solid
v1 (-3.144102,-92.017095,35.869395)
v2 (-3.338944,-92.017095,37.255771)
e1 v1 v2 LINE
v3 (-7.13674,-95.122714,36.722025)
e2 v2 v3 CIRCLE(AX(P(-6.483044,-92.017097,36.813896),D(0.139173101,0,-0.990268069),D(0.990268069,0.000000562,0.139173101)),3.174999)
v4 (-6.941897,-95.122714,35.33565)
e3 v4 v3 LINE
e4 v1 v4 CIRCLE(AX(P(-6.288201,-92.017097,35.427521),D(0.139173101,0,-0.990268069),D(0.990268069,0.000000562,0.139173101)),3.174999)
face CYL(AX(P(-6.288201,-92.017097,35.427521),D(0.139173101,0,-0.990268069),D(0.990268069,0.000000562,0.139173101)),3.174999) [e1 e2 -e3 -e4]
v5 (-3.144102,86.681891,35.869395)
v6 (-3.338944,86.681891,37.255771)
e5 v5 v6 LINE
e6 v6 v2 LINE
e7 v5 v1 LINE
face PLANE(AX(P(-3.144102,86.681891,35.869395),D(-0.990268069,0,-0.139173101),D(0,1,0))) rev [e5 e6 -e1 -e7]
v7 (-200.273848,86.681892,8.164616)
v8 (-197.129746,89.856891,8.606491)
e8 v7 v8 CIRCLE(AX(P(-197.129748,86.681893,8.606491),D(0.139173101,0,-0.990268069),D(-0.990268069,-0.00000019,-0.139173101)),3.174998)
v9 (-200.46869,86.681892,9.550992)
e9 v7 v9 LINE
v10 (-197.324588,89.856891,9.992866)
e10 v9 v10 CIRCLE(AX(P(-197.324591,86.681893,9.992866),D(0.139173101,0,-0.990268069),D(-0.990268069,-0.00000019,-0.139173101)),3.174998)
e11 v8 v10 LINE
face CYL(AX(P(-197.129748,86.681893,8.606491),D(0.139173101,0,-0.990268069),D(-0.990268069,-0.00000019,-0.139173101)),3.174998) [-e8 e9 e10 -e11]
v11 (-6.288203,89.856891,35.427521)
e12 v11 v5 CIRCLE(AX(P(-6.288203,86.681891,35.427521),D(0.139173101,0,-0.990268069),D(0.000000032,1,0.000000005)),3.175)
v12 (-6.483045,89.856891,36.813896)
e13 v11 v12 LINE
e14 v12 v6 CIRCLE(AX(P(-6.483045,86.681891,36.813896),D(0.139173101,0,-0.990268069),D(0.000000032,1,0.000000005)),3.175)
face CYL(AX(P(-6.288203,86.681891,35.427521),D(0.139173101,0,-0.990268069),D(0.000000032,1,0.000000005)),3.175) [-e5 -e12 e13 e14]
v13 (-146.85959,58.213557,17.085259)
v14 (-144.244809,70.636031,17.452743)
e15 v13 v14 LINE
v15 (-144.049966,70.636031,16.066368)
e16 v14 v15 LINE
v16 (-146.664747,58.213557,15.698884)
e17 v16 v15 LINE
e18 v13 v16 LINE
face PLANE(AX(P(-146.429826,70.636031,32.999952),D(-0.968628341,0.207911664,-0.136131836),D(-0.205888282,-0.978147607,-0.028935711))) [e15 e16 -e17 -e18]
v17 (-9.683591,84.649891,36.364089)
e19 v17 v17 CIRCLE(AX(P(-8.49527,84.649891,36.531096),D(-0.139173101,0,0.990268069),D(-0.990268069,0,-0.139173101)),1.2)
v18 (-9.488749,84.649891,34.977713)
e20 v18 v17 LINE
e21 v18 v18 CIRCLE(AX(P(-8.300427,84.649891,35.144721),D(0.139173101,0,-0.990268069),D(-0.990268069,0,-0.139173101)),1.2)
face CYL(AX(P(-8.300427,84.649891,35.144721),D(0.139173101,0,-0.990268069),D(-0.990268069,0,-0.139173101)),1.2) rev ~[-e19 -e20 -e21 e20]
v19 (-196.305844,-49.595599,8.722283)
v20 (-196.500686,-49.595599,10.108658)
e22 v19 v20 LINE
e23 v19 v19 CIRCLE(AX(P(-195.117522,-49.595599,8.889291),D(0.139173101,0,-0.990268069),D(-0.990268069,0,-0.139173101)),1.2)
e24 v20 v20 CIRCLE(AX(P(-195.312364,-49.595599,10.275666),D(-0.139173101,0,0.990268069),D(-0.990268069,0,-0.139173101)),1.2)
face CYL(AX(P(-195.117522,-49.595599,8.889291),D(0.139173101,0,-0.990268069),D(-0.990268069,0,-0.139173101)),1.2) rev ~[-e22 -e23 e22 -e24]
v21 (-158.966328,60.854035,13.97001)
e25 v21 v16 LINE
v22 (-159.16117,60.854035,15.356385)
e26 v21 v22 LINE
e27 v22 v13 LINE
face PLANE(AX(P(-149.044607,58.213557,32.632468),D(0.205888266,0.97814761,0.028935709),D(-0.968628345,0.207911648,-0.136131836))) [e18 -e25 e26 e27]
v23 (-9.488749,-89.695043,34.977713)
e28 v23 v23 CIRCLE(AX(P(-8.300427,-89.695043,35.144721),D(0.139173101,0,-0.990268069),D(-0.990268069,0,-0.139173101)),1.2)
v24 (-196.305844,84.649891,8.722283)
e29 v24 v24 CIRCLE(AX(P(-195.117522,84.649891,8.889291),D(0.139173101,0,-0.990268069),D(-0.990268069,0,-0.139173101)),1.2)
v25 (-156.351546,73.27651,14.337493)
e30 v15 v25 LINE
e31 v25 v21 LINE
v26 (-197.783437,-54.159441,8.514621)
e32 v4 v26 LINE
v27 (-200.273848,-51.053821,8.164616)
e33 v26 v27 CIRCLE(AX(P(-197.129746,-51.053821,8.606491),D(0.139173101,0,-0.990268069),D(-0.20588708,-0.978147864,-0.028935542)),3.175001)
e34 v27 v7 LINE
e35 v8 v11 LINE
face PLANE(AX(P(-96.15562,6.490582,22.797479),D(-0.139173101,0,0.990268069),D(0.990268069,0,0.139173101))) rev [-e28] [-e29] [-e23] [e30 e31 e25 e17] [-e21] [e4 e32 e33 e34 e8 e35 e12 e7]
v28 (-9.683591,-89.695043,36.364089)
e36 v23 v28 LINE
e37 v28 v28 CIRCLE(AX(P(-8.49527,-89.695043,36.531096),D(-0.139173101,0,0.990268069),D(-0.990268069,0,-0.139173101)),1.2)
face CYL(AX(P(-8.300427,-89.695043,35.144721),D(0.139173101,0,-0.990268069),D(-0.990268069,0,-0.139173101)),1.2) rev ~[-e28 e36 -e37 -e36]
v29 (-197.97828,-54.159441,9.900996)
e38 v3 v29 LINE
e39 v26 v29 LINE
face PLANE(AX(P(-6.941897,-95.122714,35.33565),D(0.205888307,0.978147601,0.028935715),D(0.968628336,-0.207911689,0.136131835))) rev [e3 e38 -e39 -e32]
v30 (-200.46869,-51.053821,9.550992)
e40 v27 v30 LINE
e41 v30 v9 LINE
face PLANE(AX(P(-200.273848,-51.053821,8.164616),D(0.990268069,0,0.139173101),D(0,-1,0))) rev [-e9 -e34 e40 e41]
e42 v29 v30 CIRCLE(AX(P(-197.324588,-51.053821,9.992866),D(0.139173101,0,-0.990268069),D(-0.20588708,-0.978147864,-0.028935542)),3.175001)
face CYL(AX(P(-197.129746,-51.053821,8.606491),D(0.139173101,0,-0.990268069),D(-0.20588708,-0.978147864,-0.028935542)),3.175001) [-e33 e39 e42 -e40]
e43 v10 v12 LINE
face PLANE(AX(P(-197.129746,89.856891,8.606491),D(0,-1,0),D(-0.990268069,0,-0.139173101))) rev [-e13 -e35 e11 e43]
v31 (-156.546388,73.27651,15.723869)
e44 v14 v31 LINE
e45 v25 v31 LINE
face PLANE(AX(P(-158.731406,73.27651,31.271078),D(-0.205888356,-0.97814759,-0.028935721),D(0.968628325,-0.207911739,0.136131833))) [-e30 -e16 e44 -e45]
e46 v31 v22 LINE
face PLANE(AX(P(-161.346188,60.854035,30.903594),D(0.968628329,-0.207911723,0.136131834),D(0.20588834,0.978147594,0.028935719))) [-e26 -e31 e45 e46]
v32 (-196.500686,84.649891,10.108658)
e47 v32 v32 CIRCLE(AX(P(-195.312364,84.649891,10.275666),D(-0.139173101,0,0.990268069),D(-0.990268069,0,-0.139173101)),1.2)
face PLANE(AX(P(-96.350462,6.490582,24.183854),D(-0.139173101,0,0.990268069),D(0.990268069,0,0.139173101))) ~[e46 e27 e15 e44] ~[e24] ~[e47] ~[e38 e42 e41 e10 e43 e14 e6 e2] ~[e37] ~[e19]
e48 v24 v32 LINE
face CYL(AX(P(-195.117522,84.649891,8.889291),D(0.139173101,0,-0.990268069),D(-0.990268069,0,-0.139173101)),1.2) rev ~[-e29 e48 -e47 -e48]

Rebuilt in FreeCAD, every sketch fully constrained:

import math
import FreeCAD as App
import Part
import Sketcher
Q = App.Units.Quantity

doc = App.newDocument("Part")
body = doc.addObject("PartDesign::Body", "Body")

# Sketch on XY plane
sketch1 = doc.addObject("Sketcher::SketchObject", "Sketch")
body.addObject(sketch1)
sketch1.AttachmentSupport = (doc.XY_Plane, [""])
sketch1.MapMode = "FlatFace"
sketch1.addGeometry([
    Part.LineSegment(App.Vector(-140, 71, 0), App.Vector(-153, 73, 0)),
    Part.LineSegment(App.Vector(-153, 73, 0), App.Vector(-155, 61, 0)),
    Part.LineSegment(App.Vector(-155, 61, 0), App.Vector(-143, 58, 0)),
    Part.LineSegment(App.Vector(-143, 58, 0), App.Vector(-140, 71, 0)),
], False)
sketch1.addConstraint([
    Sketcher.Constraint("Coincident", 0, 2, 1, 1),
    Sketcher.Constraint("Coincident", 1, 2, 2, 1),
    Sketcher.Constraint("Coincident", 2, 2, 3, 1),
    Sketcher.Constraint("Coincident", 3, 2, 0, 1),
    Sketcher.Constraint("Perpendicular", 0, 1),
    Sketcher.Constraint("Perpendicular", 1, 2),
    Sketcher.Constraint("Perpendicular", 2, 3),
    Sketcher.Constraint("Equal", 0, 1),
    Sketcher.Constraint("Angle", 0, Q("167.999997 deg")),
    Sketcher.Constraint("Distance", 0, Q("0.5 in")),
    Sketcher.Constraint("DistanceX", 0, 2, -1, 1, Q("152.83455 mm")),
    Sketcher.Constraint("DistanceY", -1, 1, 0, 2, Q("73.27651 mm")),
])
pad1 = doc.addObject("PartDesign::Pad", "Pad")
body.addObject(pad1)
pad1.Profile = sketch1
pad1.Length = Q("2 in")
pad1.Midplane = True
body2 = doc.addObject("PartDesign::Body", "Body001")
doc.recompute()

body.Placement = App.Placement(App.Vector(-7.384231, 0, 52.541536), App.Rotation(App.Vector(0, -1, 0), 8))
boolean = doc.addObject("PartDesign::Boolean", "Boolean")
body2.addObject(boolean)
boolean.Type = "Fuse"
boolean.addObjects([body])
body3 = doc.addObject("PartDesign::Body", "Body002")
body3.AllowCompound = True

# Sketch on XY plane
sketch2 = doc.addObject("Sketcher::SketchObject", "Sketch001")
body3.addObject(sketch2)
sketch2.AttachmentSupport = (doc.getObject("XY_Plane002"), [""])
sketch2.MapMode = "FlatFace"
sketch2.addGeometry([
    Part.Circle(App.Vector(-32, 84.6, 0), App.Vector(0, 0, 1), 1.2),
    Part.Circle(App.Vector(-32, -89.7, 0), App.Vector(0, 0, 1), 1.2),
    Part.Circle(App.Vector(156.7, -49.6, 0), App.Vector(0, 0, 1), 1.2),
    Part.Circle(App.Vector(156.7, 84.6, 0), App.Vector(0, 0, 1), 1.2),
], False)
sketch2.addConstraint([
    Sketcher.Constraint("Equal", 0, 1),
    Sketcher.Constraint("Equal", 1, 2),
    Sketcher.Constraint("Equal", 2, 3),
    Sketcher.Constraint("Horizontal", 0, 3, 3, 3),
    Sketcher.Constraint("Vertical", 0, 3, 1, 3),
    Sketcher.Constraint("Vertical", 2, 3, 3, 3),
    Sketcher.Constraint("Diameter", 0, Q("2.4 mm")),
    Sketcher.Constraint("DistanceY", 2, 3, -1, 1, Q("49.595599 mm")),
    Sketcher.Constraint("DistanceX", 0, 3, -1, 1, Q("31.998318 mm")),
    Sketcher.Constraint("DistanceY", -1, 1, 0, 3, Q("84.649891 mm")),
    Sketcher.Constraint("DistanceY", 1, 3, -1, 1, Q("89.695043 mm")),
    Sketcher.Constraint("DistanceX", -1, 1, 2, 3, Q("156.654735 mm")),
])
pad2 = doc.addObject("PartDesign::Pad", "Pad001")
body3.addObject(pad2)
pad2.Profile = sketch2
pad2.Length = 7.8
body4 = doc.addObject("PartDesign::Body", "Body003")
body4.AllowCompound = True
doc.recompute()

body3.Placement = App.Placement(App.Vector(39.98734, 0, 30.691416), App.Rotation(App.Vector(0, 1, 0), 8))
boolean2 = doc.addObject("PartDesign::Boolean", "Boolean001")
body4.addObject(boolean2)
boolean2.Type = "Fuse"
boolean2.addObjects([body3])
body5 = doc.addObject("PartDesign::Body", "Body004")

# Sketch on XY plane
sketch3 = doc.addObject("Sketcher::SketchObject", "Sketch002")
body5.addObject(sketch3)
sketch3.AttachmentSupport = (doc.getObject("XY_Plane004"), [""])
sketch3.MapMode = "FlatFace"
sketch3.addGeometry([
    Part.LineSegment(App.Vector(-37.2, 86.7, 0), App.Vector(-37.2, -92, 0)),  # 0
    Part.ArcOfCircle(Part.Circle(App.Vector(-34, -92, 0), App.Vector(0, 0, 1), 3.2), math.radians(180), math.radians(282)),  # 1
    Part.LineSegment(App.Vector(-33.4, -95.1, 0), App.Vector(159.3, -54.2, 0)),  # 2
    Part.ArcOfCircle(Part.Circle(App.Vector(158.7, -51.1, 0), App.Vector(0, 0, 1), 3.2), math.radians(-78), math.radians(0)),  # 3
    Part.LineSegment(App.Vector(161.9, -51.1, 0), App.Vector(161.9, 86.7, 0)),  # 4
    Part.ArcOfCircle(Part.Circle(App.Vector(158.7, 86.7, 0), App.Vector(0, 0, 1), 3.2), math.radians(0), math.radians(90)),  # 5
    Part.LineSegment(App.Vector(158.7, 89.9, 0), App.Vector(-34, 89.9, 0)),  # 6
    Part.ArcOfCircle(Part.Circle(App.Vector(-34, 86.7, 0), App.Vector(0, 0, 1), 3.2), math.radians(90), math.radians(180)),  # 7
], False)
sketch3.addConstraint([
    Sketcher.Constraint("Tangent", 0, 2, 1, 1),
    Sketcher.Constraint("Tangent", 1, 2, 2, 1),
    Sketcher.Constraint("Tangent", 2, 2, 3, 1),
    Sketcher.Constraint("Tangent", 3, 2, 4, 1),
    Sketcher.Constraint("Tangent", 4, 2, 5, 1),
    Sketcher.Constraint("Tangent", 5, 2, 6, 1),
    Sketcher.Constraint("Tangent", 6, 2, 7, 1),
    Sketcher.Constraint("Tangent", 7, 2, 0, 1),
    Sketcher.Constraint("Vertical", 0),
    Sketcher.Constraint("Vertical", 4),
    Sketcher.Constraint("Horizontal", 6),
    Sketcher.Constraint("Equal", 1, 5),
    Sketcher.Constraint("Equal", 5, 7),
    Sketcher.Constraint("Vertical", 3, 3, 5, 2),
    Sketcher.Constraint("Angle", 2, Q("12 deg")),
    Sketcher.Constraint("Radius", 1, Q("0.125 in")),
    Sketcher.Constraint("DistanceX", 6, 2, 6, 1, Q("192.717052 mm")),
    Sketcher.Constraint("DistanceX", 1, 2, -1, 1, Q("33.370199 mm")),
    Sketcher.Constraint("DistanceY", 0, 2, 0, 1, Q("178.698986 mm")),
    Sketcher.Constraint("DistanceY", 3, 3, -1, 1, Q("51.053821 mm")),
])
pad3 = doc.addObject("PartDesign::Pad", "Pad002")
body5.addObject(pad3)
pad3.Profile = sketch3
pad3.Length = 1.4
body6 = doc.addObject("PartDesign::Body", "Body005")
doc.recompute()

body5.Placement = App.Placement(App.Vector(39.98734, 0, 30.691416), App.Rotation(App.Vector(0, 1, 0), 8))
boolean3 = doc.addObject("PartDesign::Boolean", "Boolean002")
body6.addObject(boolean3)
boolean3.Type = "Fuse"
boolean3.addObjects([body5])
doc.recompute()

boolean4 = doc.addObject("PartDesign::Boolean", "Boolean003")
body6.addObject(boolean4)
boolean4.Type = "Cut"
boolean4.addObjects([body4])
body7 = doc.addObject("PartDesign::Body", "Body006")
doc.recompute()

mirroring = doc.addObject("Part::Mirroring", "Mirroring")
mirroring.Source = body6
mirroring.Base = App.Vector(0, 0, 0)
mirroring.Normal = App.Vector(1, 0, 0)
body7.BaseFeature = mirroring
doc.recompute()

boolean5 = doc.addObject("PartDesign::Boolean", "Boolean004")
body7.addObject(boolean5)
boolean5.Type = "Cut"
boolean5.addObjects([body2])
body6.Visibility = False
mirroring.Visibility = False

doc.recompute()
